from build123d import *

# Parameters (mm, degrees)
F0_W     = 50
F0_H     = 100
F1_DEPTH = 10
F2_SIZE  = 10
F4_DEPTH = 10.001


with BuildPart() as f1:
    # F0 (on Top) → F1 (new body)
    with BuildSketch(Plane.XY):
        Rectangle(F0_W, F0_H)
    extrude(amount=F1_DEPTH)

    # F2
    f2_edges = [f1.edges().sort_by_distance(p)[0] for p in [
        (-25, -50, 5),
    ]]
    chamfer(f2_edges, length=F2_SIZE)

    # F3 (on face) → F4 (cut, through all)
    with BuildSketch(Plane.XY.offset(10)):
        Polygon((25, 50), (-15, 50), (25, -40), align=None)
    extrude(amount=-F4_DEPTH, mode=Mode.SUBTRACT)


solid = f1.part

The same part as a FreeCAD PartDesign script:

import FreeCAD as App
import Part
import Sketcher

V = App.Vector
Q = App.Units.Quantity


def edges_at(feature, points):
    """Names of the edges that pass closest to the given points."""
    edges = feature.Shape.Edges
    near = lambda p: min(range(len(edges)), key=lambda i: edges[i].distToShape(Part.Vertex(*p))[0])
    return sorted({f"Edge{near(p) + 1}" for p in points})

doc = App.newDocument("Part")
body = doc.addObject("PartDesign::Body", "Body")

# Sketch on XY plane
sketch1 = body.newObject("Sketcher::SketchObject", "Sketch")
sketch1.AttachmentSupport = (doc.getObject("XY_Plane"), [""])
sketch1.MapMode = "FlatFace"
sketch1.addGeometry([
    Part.LineSegment(V(-25, 50, 0), V(-25, -50, 0)),
    Part.LineSegment(V(-25, -50, 0), V(25, -50, 0)),
    Part.LineSegment(V(25, -50, 0), V(25, 50, 0)),
    Part.LineSegment(V(25, 50, 0), V(-25, 50, 0)),
], False)
sketch1.addConstraint([
    Sketcher.Constraint("Coincident", 0, 2, 1, 1),
    Sketcher.Constraint("Coincident", 1, 2, 2, 1),
    Sketcher.Constraint("Coincident", 2, 2, 3, 1),
    Sketcher.Constraint("Coincident", 3, 2, 0, 1),
    Sketcher.Constraint("Vertical", 0),
    Sketcher.Constraint("Horizontal", 1),
    Sketcher.Constraint("Vertical", 2),
    Sketcher.Constraint("Horizontal", 3),
    Sketcher.Constraint("Symmetric", 0, 2, 2, 2, -1, 1),
    Sketcher.Constraint("DistanceX", 1, 1, 1, 2, Q("50 mm")),
    Sketcher.Constraint("DistanceY", 0, 2, 0, 1, Q("100 mm")),
])
pad1 = body.newObject("PartDesign::Pad", "Pad")
pad1.Profile = sketch1
pad1.Length = 10
doc.recompute()

chamfer = body.newObject("PartDesign::Chamfer", "Chamfer")
chamfer.Base = (pad1, edges_at(pad1, [(-25, -50, 5)]))
chamfer.Size = 10

# Sketch on XY plane
sketch2 = body.newObject("Sketcher::SketchObject", "Sketch001")
sketch2.AttachmentSupport = (doc.getObject("XY_Plane"), [""])
sketch2.MapMode = "FlatFace"
sketch2.AttachmentOffset = App.Placement(V(0, 0, 10), App.Rotation())
sketch2.addGeometry([
    Part.LineSegment(V(25, 50, 0), V(-15, 50, 0)),
    Part.LineSegment(V(-15, 50, 0), V(25, -40, 0)),
    Part.LineSegment(V(25, -40, 0), V(25, 50, 0)),
], False)
sketch2.addConstraint([
    Sketcher.Constraint("Coincident", 0, 2, 1, 1),
    Sketcher.Constraint("Coincident", 1, 2, 2, 1),
    Sketcher.Constraint("Coincident", 2, 2, 0, 1),
    Sketcher.Constraint("Horizontal", 0),
    Sketcher.Constraint("Vertical", 2),
    Sketcher.Constraint("DistanceX", 0, 2, 0, 1, Q("40 mm")),
    Sketcher.Constraint("DistanceY", 2, 1, 2, 2, Q("90 mm")),
    Sketcher.Constraint("DistanceX", 0, 2, -1, 1, Q("15 mm")),
    Sketcher.Constraint("DistanceY", -1, 1, 0, 2, Q("50 mm")),
])
pocket1 = body.newObject("PartDesign::Pocket", "Pocket")
pocket1.Profile = sketch2
pocket1.Type = "ThroughAll"

doc.recompute()
